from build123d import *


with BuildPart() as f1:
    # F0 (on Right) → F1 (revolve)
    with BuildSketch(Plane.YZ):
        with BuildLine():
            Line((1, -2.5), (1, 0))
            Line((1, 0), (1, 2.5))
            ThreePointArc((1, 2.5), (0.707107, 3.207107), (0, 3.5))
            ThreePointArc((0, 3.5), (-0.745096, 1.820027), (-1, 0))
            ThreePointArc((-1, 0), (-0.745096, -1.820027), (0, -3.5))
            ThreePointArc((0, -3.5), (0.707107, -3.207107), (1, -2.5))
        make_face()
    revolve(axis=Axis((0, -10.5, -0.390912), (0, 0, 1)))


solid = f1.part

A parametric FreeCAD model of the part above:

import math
import FreeCAD as App
import Part
import Sketcher

V = App.Vector
Q = App.Units.Quantity

doc = App.newDocument("Part")
body = doc.addObject("PartDesign::Body", "Body")

# Sketch on YZ plane
sketch1 = body.newObject("Sketcher::SketchObject", "Sketch")
sketch1.AttachmentSupport = (doc.getObject("YZ_Plane"), [""])
sketch1.MapMode = "FlatFace"
sketch1.addGeometry(Part.LineSegment(V(1, -2.5, 0), V(1, 2.5, 0)), False)
sketch1.addGeometry(Part.ArcOfCircle(Part.Circle(V(0, 2.5, 0), V(0, 0, 1), 1), math.radians(0), math.radians(90)), False)
sketch1.addGeometry(Part.ArcOfCircle(Part.Circle(V(5.6, 0, 0), V(0, 0, 1), 6.6), math.radians(148), math.radians(180)), False)
sketch1.addGeometry(Part.ArcOfCircle(Part.Circle(V(5.6, 0, 0), V(0, 0, 1), 6.6), math.radians(-180), math.radians(-148)), False)
sketch1.addGeometry(Part.ArcOfCircle(Part.Circle(V(0, -2.5, 0), V(0, 0, 1), 1), math.radians(-90), math.radians(0)), False)
sketch1.addGeometry(Part.LineSegment(V(-10.5, -3.5, 0), V(-10.5, 3.5, 0)), True)  # axis
sketch1.addConstraint(Sketcher.Constraint("Tangent", 0, 2, 1, 1))
sketch1.addConstraint(Sketcher.Constraint("Coincident", 1, 2, 2, 1))
sketch1.addConstraint(Sketcher.Constraint("Tangent", 2, 2, 3, 1))
sketch1.addConstraint(Sketcher.Constraint("Coincident", 3, 2, 4, 1))
sketch1.addConstraint(Sketcher.Constraint("Tangent", 4, 2, 0, 1))
sketch1.addConstraint(Sketcher.Constraint("Vertical", 0))
sketch1.addConstraint(Sketcher.Constraint("Vertical", 5))
sketch1.addConstraint(Sketcher.Constraint("Equal", 2, 3))
sketch1.addConstraint(Sketcher.Constraint("Equal", 1, 4))
sketch1.addConstraint(Sketcher.Constraint("Symmetric", 1, 3, 4, 3, -1, 1))
sketch1.addConstraint(Sketcher.Constraint("PointOnObject", 2, 3, -1))
sketch1.addConstraint(Sketcher.Constraint("PointOnObject", 1, 2, -2))
sketch1.addConstraint(Sketcher.Constraint("PointOnObject", 2, 2, -1))
sketch1.addConstraint(Sketcher.Constraint("Horizontal", 3, 2, 5, 1))
sketch1.addConstraint(Sketcher.Constraint("Horizontal", 1, 2, 5, 2))
sketch1.addConstraint(Sketcher.Constraint("Radius", 1, Q("0.999999 mm")))
sketch1.addConstraint(Sketcher.Constraint("DistanceY", 0, 1, 0, 2, Q("5 mm")))
sketch1.addConstraint(Sketcher.Constraint("DistanceX", 2, 2, -1, 1, Q("1 mm")))
sketch1.addConstraint(Sketcher.Constraint("DistanceX", 5, 1, -1, 1, Q("10.5 mm")))
revolution = body.newObject("PartDesign::Revolution", "Revolution")
revolution.Profile = sketch1
revolution.ReferenceAxis = (sketch1, ["Axis0"])
revolution.Angle = 360

doc.recompute()
